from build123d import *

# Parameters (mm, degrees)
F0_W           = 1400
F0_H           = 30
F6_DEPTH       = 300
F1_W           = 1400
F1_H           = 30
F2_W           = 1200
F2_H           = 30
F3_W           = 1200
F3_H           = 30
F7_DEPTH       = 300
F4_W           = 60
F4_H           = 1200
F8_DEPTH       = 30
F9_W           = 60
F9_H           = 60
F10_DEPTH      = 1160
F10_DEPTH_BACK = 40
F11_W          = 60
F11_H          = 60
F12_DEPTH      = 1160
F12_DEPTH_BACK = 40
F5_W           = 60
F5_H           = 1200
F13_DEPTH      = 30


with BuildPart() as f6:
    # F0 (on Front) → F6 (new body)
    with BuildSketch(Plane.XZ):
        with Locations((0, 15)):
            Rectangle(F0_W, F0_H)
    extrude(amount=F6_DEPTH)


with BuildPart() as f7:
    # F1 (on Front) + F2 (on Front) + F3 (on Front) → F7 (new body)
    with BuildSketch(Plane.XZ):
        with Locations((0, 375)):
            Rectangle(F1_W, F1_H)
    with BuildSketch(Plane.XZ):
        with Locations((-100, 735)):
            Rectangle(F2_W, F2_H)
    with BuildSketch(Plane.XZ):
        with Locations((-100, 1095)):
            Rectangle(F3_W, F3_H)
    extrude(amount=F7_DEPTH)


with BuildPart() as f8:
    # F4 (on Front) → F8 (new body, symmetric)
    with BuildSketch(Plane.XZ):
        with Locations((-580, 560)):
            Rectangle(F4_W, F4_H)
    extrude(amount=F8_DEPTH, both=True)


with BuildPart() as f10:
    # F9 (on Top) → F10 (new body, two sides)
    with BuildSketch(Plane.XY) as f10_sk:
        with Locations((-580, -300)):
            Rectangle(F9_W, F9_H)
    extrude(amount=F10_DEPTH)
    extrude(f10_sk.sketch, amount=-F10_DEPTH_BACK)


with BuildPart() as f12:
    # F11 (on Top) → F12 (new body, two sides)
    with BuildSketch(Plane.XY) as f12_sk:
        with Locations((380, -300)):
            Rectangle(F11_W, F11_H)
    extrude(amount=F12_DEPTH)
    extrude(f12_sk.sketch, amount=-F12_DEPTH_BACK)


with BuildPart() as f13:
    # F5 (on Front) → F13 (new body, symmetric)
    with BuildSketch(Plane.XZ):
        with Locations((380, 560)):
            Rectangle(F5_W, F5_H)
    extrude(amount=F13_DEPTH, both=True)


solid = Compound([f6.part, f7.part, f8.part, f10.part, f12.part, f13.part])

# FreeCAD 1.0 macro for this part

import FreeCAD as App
import Part
import Sketcher
from FreeCAD import Vector

doc = App.newDocument("Part")
body = doc.addObject("PartDesign::Body", "Body")

# Sketch on XZ plane
sketch1 = body.newObject("Sketcher::SketchObject", "Sketch")
sketch1.AttachmentSupport = (doc.getObject("XZ_Plane"), [""])
sketch1.MapMode = "FlatFace"
sketch1.addGeometry(Part.LineSegment(Vector(-700, 30, 0), Vector(-700, 0, 0)), False)
sketch1.addGeometry(Part.LineSegment(Vector(-700, 0, 0), Vector(700, 0, 0)), False)
sketch1.addGeometry(Part.LineSegment(Vector(700, 0, 0), Vector(700, 30, 0)), False)
sketch1.addGeometry(Part.LineSegment(Vector(700, 30, 0), Vector(-700, 30, 0)), False)
sketch1.addConstraint(Sketcher.Constraint("Coincident", 0, 2, 1, 1))
sketch1.addConstraint(Sketcher.Constraint("Coincident", 1, 2, 2, 1))
sketch1.addConstraint(Sketcher.Constraint("Coincident", 2, 2, 3, 1))
sketch1.addConstraint(Sketcher.Constraint("Coincident", 3, 2, 0, 1))
sketch1.addConstraint(Sketcher.Constraint("Vertical", 0))
sketch1.addConstraint(Sketcher.Constraint("Horizontal", 1))
sketch1.addConstraint(Sketcher.Constraint("Vertical", 2))
sketch1.addConstraint(Sketcher.Constraint("Horizontal", 3))
sketch1.addConstraint(Sketcher.Constraint("Symmetric", 0, 2, 1, 2, -1, 1))
sketch1.addConstraint(Sketcher.Constraint("DistanceX", 1, 1, 1, 2, 1400.0))
sketch1.addConstraint(Sketcher.Constraint("DistanceY", 0, 2, 0, 1, 30.0))
pad1 = body.newObject("PartDesign::Pad", "Pad")
pad1.Profile = sketch1
pad1.Length = 300
body2 = doc.addObject("PartDesign::Body", "Body001")
body2.AllowCompound = True

# Sketch on XZ plane
sketch2 = body2.newObject("Sketcher::SketchObject", "Sketch001")
sketch2.AttachmentSupport = (doc.getObject("XZ_Plane001"), [""])
sketch2.MapMode = "FlatFace"
sketch2.addGeometry(Part.LineSegment(Vector(-700, 390, 0), Vector(-700, 360, 0)), False)
sketch2.addGeometry(Part.LineSegment(Vector(-700, 360, 0), Vector(700, 360, 0)), False)
sketch2.addGeometry(Part.LineSegment(Vector(700, 360, 0), Vector(700, 390, 0)), False)
sketch2.addGeometry(Part.LineSegment(Vector(700, 390, 0), Vector(-700, 390, 0)), False)
sketch2.addGeometry(Part.LineSegment(Vector(-700, 750, 0), Vector(-700, 720, 0)), False)
sketch2.addGeometry(Part.LineSegment(Vector(-700, 720, 0), Vector(500, 720, 0)), False)
sketch2.addGeometry(Part.LineSegment(Vector(500, 720, 0), Vector(500, 750, 0)), False)
sketch2.addGeometry(Part.LineSegment(Vector(500, 750, 0), Vector(-700, 750, 0)), False)
sketch2.addGeometry(Part.LineSegment(Vector(-700, 1110, 0), Vector(-700, 1080, 0)), False)
sketch2.addGeometry(Part.LineSegment(Vector(-700, 1080, 0), Vector(500, 1080, 0)), False)
sketch2.addGeometry(Part.LineSegment(Vector(500, 1080, 0), Vector(500, 1110, 0)), False)
sketch2.addGeometry(Part.LineSegment(Vector(500, 1110, 0), Vector(-700, 1110, 0)), False)
sketch2.addConstraint(Sketcher.Constraint("Coincident", 0, 2, 1, 1))
sketch2.addConstraint(Sketcher.Constraint("Coincident", 1, 2, 2, 1))
sketch2.addConstraint(Sketcher.Constraint("Coincident", 2, 2, 3, 1))
sketch2.addConstraint(Sketcher.Constraint("Coincident", 3, 2, 0, 1))
sketch2.addConstraint(Sketcher.Constraint("Coincident", 4, 2, 5, 1))
sketch2.addConstraint(Sketcher.Constraint("Coincident", 5, 2, 6, 1))
sketch2.addConstraint(Sketcher.Constraint("Coincident", 6, 2, 7, 1))
sketch2.addConstraint(Sketcher.Constraint("Coincident", 7, 2, 4, 1))
sketch2.addConstraint(Sketcher.Constraint("Coincident", 8, 2, 9, 1))
sketch2.addConstraint(Sketcher.Constraint("Coincident", 9, 2, 10, 1))
sketch2.addConstraint(Sketcher.Constraint("Coincident", 10, 2, 11, 1))
sketch2.addConstraint(Sketcher.Constraint("Coincident", 11, 2, 8, 1))
sketch2.addConstraint(Sketcher.Constraint("Vertical", 0))
sketch2.addConstraint(Sketcher.Constraint("Horizontal", 1))
sketch2.addConstraint(Sketcher.Constraint("Vertical", 2))
sketch2.addConstraint(Sketcher.Constraint("Horizontal", 3))
sketch2.addConstraint(Sketcher.Constraint("Vertical", 4))
sketch2.addConstraint(Sketcher.Constraint("Horizontal", 5))
sketch2.addConstraint(Sketcher.Constraint("Vertical", 6))
sketch2.addConstraint(Sketcher.Constraint("Horizontal", 7))
sketch2.addConstraint(Sketcher.Constraint("Vertical", 8))
sketch2.addConstraint(Sketcher.Constraint("Horizontal", 9))
sketch2.addConstraint(Sketcher.Constraint("Vertical", 10))
sketch2.addConstraint(Sketcher.Constraint("Horizontal", 11))
sketch2.addConstraint(Sketcher.Constraint("Vertical", 3, 2, 4, 2))
sketch2.addConstraint(Sketcher.Constraint("Vertical", 7, 2, 8, 2))
sketch2.addConstraint(Sketcher.Constraint("Vertical", 6, 2, 9, 2))
sketch2.addConstraint(Sketcher.Constraint("Equal", 2, 4))
sketch2.addConstraint(Sketcher.Constraint("Equal", 6, 8))
sketch2.addConstraint(Sketcher.Constraint("DistanceX", 1, 1, 1, 2, 1400.0))
sketch2.addConstraint(Sketcher.Constraint("DistanceX", 5, 1, 5, 2, 1200.0))
sketch2.addConstraint(Sketcher.Constraint("DistanceY", 0, 2, 0, 1, 30.0))
sketch2.addConstraint(Sketcher.Constraint("DistanceX", 0, 2, -1, 1, 700.0))
sketch2.addConstraint(Sketcher.Constraint("DistanceY", -1, 1, 0, 2, 360.0))
sketch2.addConstraint(Sketcher.Constraint("DistanceY", -1, 1, 4, 2, 720.0))
sketch2.addConstraint(Sketcher.Constraint("DistanceY", -1, 1, 8, 2, 1080.0))
pad2 = body2.newObject("PartDesign::Pad", "Pad001")
pad2.Profile = sketch2
pad2.Length = 300
body3 = doc.addObject("PartDesign::Body", "Body002")

# Sketch on XZ plane
sketch3 = body3.newObject("Sketcher::SketchObject", "Sketch002")
sketch3.AttachmentSupport = (doc.getObject("XZ_Plane002"), [""])
sketch3.MapMode = "FlatFace"
sketch3.addGeometry(Part.LineSegment(Vector(-610, 1160, 0), Vector(-610, -40, 0)), False)
sketch3.addGeometry(Part.LineSegment(Vector(-610, -40, 0), Vector(-550, -40, 0)), False)
sketch3.addGeometry(Part.LineSegment(Vector(-550, -40, 0), Vector(-550, 1160, 0)), False)
sketch3.addGeometry(Part.LineSegment(Vector(-550, 1160, 0), Vector(-610, 1160, 0)), False)
sketch3.addConstraint(Sketcher.Constraint("Coincident", 0, 2, 1, 1))
sketch3.addConstraint(Sketcher.Constraint("Coincident", 1, 2, 2, 1))
sketch3.addConstraint(Sketcher.Constraint("Coincident", 2, 2, 3, 1))
sketch3.addConstraint(Sketcher.Constraint("Coincident", 3, 2, 0, 1))
sketch3.addConstraint(Sketcher.Constraint("Vertical", 0))
sketch3.addConstraint(Sketcher.Constraint("Horizontal", 1))
sketch3.addConstraint(Sketcher.Constraint("Vertical", 2))
sketch3.addConstraint(Sketcher.Constraint("Horizontal", 3))
sketch3.addConstraint(Sketcher.Constraint("DistanceX", 1, 1, 1, 2, 60.0))
sketch3.addConstraint(Sketcher.Constraint("DistanceY", 0, 2, 0, 1, 1200.0))
sketch3.addConstraint(Sketcher.Constraint("DistanceX", 0, 2, -1, 1, 610.0))
sketch3.addConstraint(Sketcher.Constraint("DistanceY", 0, 2, -1, 1, 40.0))
pad3 = body3.newObject("PartDesign::Pad", "Pad002")
pad3.Profile = sketch3
pad3.Length = 60
pad3.Midplane = True
body4 = doc.addObject("PartDesign::Body", "Body003")

# Sketch on XY plane
sketch4 = body4.newObject("Sketcher::SketchObject", "Sketch003")
sketch4.AttachmentSupport = (doc.getObject("XY_Plane003"), [""])
sketch4.MapMode = "FlatFace"
sketch4.addGeometry(Part.LineSegment(Vector(-610, -270, 0), Vector(-610, -330, 0)), False)
sketch4.addGeometry(Part.LineSegment(Vector(-610, -330, 0), Vector(-550, -330, 0)), False)
sketch4.addGeometry(Part.LineSegment(Vector(-550, -330, 0), Vector(-550, -270, 0)), False)
sketch4.addGeometry(Part.LineSegment(Vector(-550, -270, 0), Vector(-610, -270, 0)), False)
sketch4.addConstraint(Sketcher.Constraint("Coincident", 0, 2, 1, 1))
sketch4.addConstraint(Sketcher.Constraint("Coincident", 1, 2, 2, 1))
sketch4.addConstraint(Sketcher.Constraint("Coincident", 2, 2, 3, 1))
sketch4.addConstraint(Sketcher.Constraint("Coincident", 3, 2, 0, 1))
sketch4.addConstraint(Sketcher.Constraint("Vertical", 0))
sketch4.addConstraint(Sketcher.Constraint("Horizontal", 1))
sketch4.addConstraint(Sketcher.Constraint("Vertical", 2))
sketch4.addConstraint(Sketcher.Constraint("Horizontal", 3))
sketch4.addConstraint(Sketcher.Constraint("Equal", 3, 0))
sketch4.addConstraint(Sketcher.Constraint("DistanceX", 1, 1, 1, 2, 60.0))
sketch4.addConstraint(Sketcher.Constraint("DistanceX", 0, 2, -1, 1, 610.0))
sketch4.addConstraint(Sketcher.Constraint("DistanceY", 0, 2, -1, 1, 330.0))
pad4 = body4.newObject("PartDesign::Pad", "Pad003")
pad4.Profile = sketch4
pad4.Type = "TwoLengths"
pad4.Length = 1160
pad4.Length2 = 40
body5 = doc.addObject("PartDesign::Body", "Body004")

# Sketch on XY plane
sketch5 = body5.newObject("Sketcher::SketchObject", "Sketch004")
sketch5.AttachmentSupport = (doc.getObject("XY_Plane004"), [""])
sketch5.MapMode = "FlatFace"
sketch5.addGeometry(Part.LineSegment(Vector(350, -270, 0), Vector(350, -330, 0)), False)
sketch5.addGeometry(Part.LineSegment(Vector(350, -330, 0), Vector(410, -330, 0)), False)
sketch5.addGeometry(Part.LineSegment(Vector(410, -330, 0), Vector(410, -270, 0)), False)
sketch5.addGeometry(Part.LineSegment(Vector(410, -270, 0), Vector(350, -270, 0)), False)
sketch5.addConstraint(Sketcher.Constraint("Coincident", 0, 2, 1, 1))
sketch5.addConstraint(Sketcher.Constraint("Coincident", 1, 2, 2, 1))
sketch5.addConstraint(Sketcher.Constraint("Coincident", 2, 2, 3, 1))
sketch5.addConstraint(Sketcher.Constraint("Coincident", 3, 2, 0, 1))
sketch5.addConstraint(Sketcher.Constraint("Vertical", 0))
sketch5.addConstraint(Sketcher.Constraint("Horizontal", 1))
sketch5.addConstraint(Sketcher.Constraint("Vertical", 2))
sketch5.addConstraint(Sketcher.Constraint("Horizontal", 3))
sketch5.addConstraint(Sketcher.Constraint("Equal", 3, 0))
sketch5.addConstraint(Sketcher.Constraint("DistanceX", 1, 1, 1, 2, 60.0))
sketch5.addConstraint(Sketcher.Constraint("DistanceX", -1, 1, 0, 2, 350.0))
sketch5.addConstraint(Sketcher.Constraint("DistanceY", 0, 2, -1, 1, 330.0))
pad5 = body5.newObject("PartDesign::Pad", "Pad004")
pad5.Profile = sketch5
pad5.Type = "TwoLengths"
pad5.Length = 1160
pad5.Length2 = 40
body6 = doc.addObject("PartDesign::Body", "Body005")

# Sketch on XZ plane
sketch6 = body6.newObject("Sketcher::SketchObject", "Sketch005")
sketch6.AttachmentSupport = (doc.getObject("XZ_Plane005"), [""])
sketch6.MapMode = "FlatFace"
sketch6.addGeometry(Part.LineSegment(Vector(350, 1160, 0), Vector(350, -40, 0)), False)
sketch6.addGeometry(Part.LineSegment(Vector(350, -40, 0), Vector(410, -40, 0)), False)
sketch6.addGeometry(Part.LineSegment(Vector(410, -40, 0), Vector(410, 1160, 0)), False)
sketch6.addGeometry(Part.LineSegment(Vector(410, 1160, 0), Vector(350, 1160, 0)), False)
sketch6.addConstraint(Sketcher.Constraint("Coincident", 0, 2, 1, 1))
sketch6.addConstraint(Sketcher.Constraint("Coincident", 1, 2, 2, 1))
sketch6.addConstraint(Sketcher.Constraint("Coincident", 2, 2, 3, 1))
sketch6.addConstraint(Sketcher.Constraint("Coincident", 3, 2, 0, 1))
sketch6.addConstraint(Sketcher.Constraint("Vertical", 0))
sketch6.addConstraint(Sketcher.Constraint("Horizontal", 1))
sketch6.addConstraint(Sketcher.Constraint("Vertical", 2))
sketch6.addConstraint(Sketcher.Constraint("Horizontal", 3))
sketch6.addConstraint(Sketcher.Constraint("DistanceX", 1, 1, 1, 2, 60.0))
sketch6.addConstraint(Sketcher.Constraint("DistanceY", 0, 2, 0, 1, 1200.0))
sketch6.addConstraint(Sketcher.Constraint("DistanceX", -1, 1, 0, 2, 350.0))
sketch6.addConstraint(Sketcher.Constraint("DistanceY", 0, 2, -1, 1, 40.0))
pad6 = body6.newObject("PartDesign::Pad", "Pad005")
pad6.Profile = sketch6
pad6.Length = 60
pad6.Midplane = True

doc.recompute()
